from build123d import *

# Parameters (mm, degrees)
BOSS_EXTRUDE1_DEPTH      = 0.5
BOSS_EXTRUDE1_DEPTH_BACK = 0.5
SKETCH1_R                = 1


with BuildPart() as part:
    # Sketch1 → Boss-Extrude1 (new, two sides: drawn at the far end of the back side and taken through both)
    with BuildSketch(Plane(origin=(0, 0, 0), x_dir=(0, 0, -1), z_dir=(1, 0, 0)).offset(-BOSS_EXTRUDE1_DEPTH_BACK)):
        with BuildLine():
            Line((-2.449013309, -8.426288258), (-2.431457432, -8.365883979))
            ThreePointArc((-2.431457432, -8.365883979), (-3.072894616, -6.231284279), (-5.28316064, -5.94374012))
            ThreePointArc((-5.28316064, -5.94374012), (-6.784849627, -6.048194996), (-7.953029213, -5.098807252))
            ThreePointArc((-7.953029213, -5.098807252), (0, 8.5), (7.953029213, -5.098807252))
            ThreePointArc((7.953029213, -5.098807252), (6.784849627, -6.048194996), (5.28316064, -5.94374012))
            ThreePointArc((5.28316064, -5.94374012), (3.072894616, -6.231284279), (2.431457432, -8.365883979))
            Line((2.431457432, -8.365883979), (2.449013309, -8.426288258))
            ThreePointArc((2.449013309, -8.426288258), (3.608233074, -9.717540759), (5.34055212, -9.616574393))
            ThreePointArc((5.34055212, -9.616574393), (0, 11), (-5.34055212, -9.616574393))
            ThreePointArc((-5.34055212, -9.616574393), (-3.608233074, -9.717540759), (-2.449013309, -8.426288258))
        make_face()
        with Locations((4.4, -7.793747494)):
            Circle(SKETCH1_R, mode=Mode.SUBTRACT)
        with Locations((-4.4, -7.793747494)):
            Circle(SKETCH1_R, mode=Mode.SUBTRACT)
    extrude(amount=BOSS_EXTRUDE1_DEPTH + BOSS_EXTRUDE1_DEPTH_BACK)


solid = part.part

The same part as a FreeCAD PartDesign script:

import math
import FreeCAD as App
import Part
import Sketcher

doc = App.newDocument("Part")
body = doc.addObject("PartDesign::Body", "Body")

sketch1 = body.newObject("Sketcher::SketchObject", "Sketch")
sketch1.AttachmentSupport = (doc.getObject("YZ_Plane"), [""])
sketch1.MapMode = "FlatFace"
sketch1.addGeometry(Part.LineSegment(App.Vector(-8.43, 2.45, 0), App.Vector(-8.37, 2.43, 0)), False)
sketch1.addGeometry(Part.ArcOfCircle(Part.Circle(App.Vector(-7.79, 4.4, 0), App.Vector(0, 0, 1), 2.05), math.radians(-106), math.radians(26)), False)
sketch1.addGeometry(Part.ArcOfCircle(Part.Circle(App.Vector(-4.09, 6.17, 0), App.Vector(0, 0, 1), 2.05), math.radians(119), math.radians(206)), False)
sketch1.addGeometry(Part.ArcOfCircle(Part.Circle(App.Vector(-0.62, 0, 0), App.Vector(0, 0, 1), 9.12), math.radians(-119), math.radians(119)), False)
sketch1.addGeometry(Part.ArcOfCircle(Part.Circle(App.Vector(-4.09, -6.17, 0), App.Vector(0, 0, 1), 2.05), math.radians(154), math.radians(241)), False)
sketch1.addGeometry(Part.ArcOfCircle(Part.Circle(App.Vector(-7.79, -4.4, 0), App.Vector(0, 0, 1), 2.05), math.radians(-26), math.radians(106)), False)
sketch1.addGeometry(Part.LineSegment(App.Vector(-8.37, -2.43, 0), App.Vector(-8.43, -2.45, 0)), False)
sketch1.addGeometry(Part.ArcOfCircle(Part.Circle(App.Vector(-7.87, -4.37, 0), App.Vector(0, 0, 1), 2), math.radians(106), math.radians(209)), False)
sketch1.addGeometry(Part.ArcOfCircle(Part.Circle(App.Vector(0, 0, 0), App.Vector(0, 0, 1), 11), math.radians(-151), math.radians(151)), False)
sketch1.addGeometry(Part.ArcOfCircle(Part.Circle(App.Vector(-7.87, 4.37, 0), App.Vector(0, 0, 1), 2), math.radians(151), math.radians(254)), False)
sketch1.addGeometry(Part.Circle(App.Vector(-7.79, 4.4, 0), App.Vector(0, 0, 1), 1), False)
sketch1.addGeometry(Part.Circle(App.Vector(-7.79, -4.4, 0), App.Vector(0, 0, 1), 1), False)
sketch1.addConstraint(Sketcher.Constraint("Tangent", 0, 2, 1, 1))
sketch1.addConstraint(Sketcher.Constraint("Tangent", 1, 2, 2, 2))
sketch1.addConstraint(Sketcher.Constraint("Tangent", 2, 1, 3, 2))
sketch1.addConstraint(Sketcher.Constraint("Tangent", 3, 1, 4, 2))
sketch1.addConstraint(Sketcher.Constraint("Tangent", 4, 1, 5, 1))
sketch1.addConstraint(Sketcher.Constraint("Tangent", 5, 2, 6, 1))
sketch1.addConstraint(Sketcher.Constraint("Tangent", 6, 2, 7, 1))
sketch1.addConstraint(Sketcher.Constraint("Tangent", 7, 2, 8, 1))
sketch1.addConstraint(Sketcher.Constraint("Tangent", 8, 2, 9, 1))
sketch1.addConstraint(Sketcher.Constraint("Tangent", 9, 2, 0, 1))
sketch1.addConstraint(Sketcher.Constraint("Coincident", 8, 3, -1, 1))
sketch1.addConstraint(Sketcher.Constraint("Coincident", 10, 3, 1, 3))
sketch1.addConstraint(Sketcher.Constraint("Coincident", 11, 3, 5, 3))
sketch1.addConstraint(Sketcher.Constraint("Equal", 1, 2))
sketch1.addConstraint(Sketcher.Constraint("Equal", 2, 4))
sketch1.addConstraint(Sketcher.Constraint("Equal", 4, 5))
sketch1.addConstraint(Sketcher.Constraint("Equal", 7, 9))
sketch1.addConstraint(Sketcher.Constraint("Equal", 10, 11))
sketch1.addConstraint(Sketcher.Constraint("Symmetric", 2, 3, 4, 3, -1))
sketch1.addConstraint(Sketcher.Constraint("Symmetric", 0, 2, 5, 2, -1))
sketch1.addConstraint(Sketcher.Constraint("Diameter", 10, 2.0))
sketch1.addConstraint(Sketcher.Constraint("Radius", 7, 2.0))
sketch1.addConstraint(Sketcher.Constraint("Radius", 8, 11.0))
sketch1.addConstraint(Sketcher.Constraint("Radius", 1, 2.05))
sketch1.addConstraint(Sketcher.Constraint("Radius", 3, 9.125))
sketch1.addConstraint(Sketcher.Constraint("DistanceY", -1, 1, 1, 3, 4.4))
sketch1.addConstraint(Sketcher.Constraint("DistanceX", 3, 3, -1, 1, 0.625))
sketch1.addConstraint(Sketcher.Constraint("DistanceY", 7, 3, 0, 2, 6.801))
sketch1.addConstraint(Sketcher.Constraint("DistanceX", 9, 3, 2, 1, 2.769299))
pad1 = body.newObject("PartDesign::Pad", "Pad")
pad1.Profile = sketch1
pad1.Type = "TwoLengths"
pad1.Length = 0.5
pad1.Length2 = 0.5

doc.recompute()
